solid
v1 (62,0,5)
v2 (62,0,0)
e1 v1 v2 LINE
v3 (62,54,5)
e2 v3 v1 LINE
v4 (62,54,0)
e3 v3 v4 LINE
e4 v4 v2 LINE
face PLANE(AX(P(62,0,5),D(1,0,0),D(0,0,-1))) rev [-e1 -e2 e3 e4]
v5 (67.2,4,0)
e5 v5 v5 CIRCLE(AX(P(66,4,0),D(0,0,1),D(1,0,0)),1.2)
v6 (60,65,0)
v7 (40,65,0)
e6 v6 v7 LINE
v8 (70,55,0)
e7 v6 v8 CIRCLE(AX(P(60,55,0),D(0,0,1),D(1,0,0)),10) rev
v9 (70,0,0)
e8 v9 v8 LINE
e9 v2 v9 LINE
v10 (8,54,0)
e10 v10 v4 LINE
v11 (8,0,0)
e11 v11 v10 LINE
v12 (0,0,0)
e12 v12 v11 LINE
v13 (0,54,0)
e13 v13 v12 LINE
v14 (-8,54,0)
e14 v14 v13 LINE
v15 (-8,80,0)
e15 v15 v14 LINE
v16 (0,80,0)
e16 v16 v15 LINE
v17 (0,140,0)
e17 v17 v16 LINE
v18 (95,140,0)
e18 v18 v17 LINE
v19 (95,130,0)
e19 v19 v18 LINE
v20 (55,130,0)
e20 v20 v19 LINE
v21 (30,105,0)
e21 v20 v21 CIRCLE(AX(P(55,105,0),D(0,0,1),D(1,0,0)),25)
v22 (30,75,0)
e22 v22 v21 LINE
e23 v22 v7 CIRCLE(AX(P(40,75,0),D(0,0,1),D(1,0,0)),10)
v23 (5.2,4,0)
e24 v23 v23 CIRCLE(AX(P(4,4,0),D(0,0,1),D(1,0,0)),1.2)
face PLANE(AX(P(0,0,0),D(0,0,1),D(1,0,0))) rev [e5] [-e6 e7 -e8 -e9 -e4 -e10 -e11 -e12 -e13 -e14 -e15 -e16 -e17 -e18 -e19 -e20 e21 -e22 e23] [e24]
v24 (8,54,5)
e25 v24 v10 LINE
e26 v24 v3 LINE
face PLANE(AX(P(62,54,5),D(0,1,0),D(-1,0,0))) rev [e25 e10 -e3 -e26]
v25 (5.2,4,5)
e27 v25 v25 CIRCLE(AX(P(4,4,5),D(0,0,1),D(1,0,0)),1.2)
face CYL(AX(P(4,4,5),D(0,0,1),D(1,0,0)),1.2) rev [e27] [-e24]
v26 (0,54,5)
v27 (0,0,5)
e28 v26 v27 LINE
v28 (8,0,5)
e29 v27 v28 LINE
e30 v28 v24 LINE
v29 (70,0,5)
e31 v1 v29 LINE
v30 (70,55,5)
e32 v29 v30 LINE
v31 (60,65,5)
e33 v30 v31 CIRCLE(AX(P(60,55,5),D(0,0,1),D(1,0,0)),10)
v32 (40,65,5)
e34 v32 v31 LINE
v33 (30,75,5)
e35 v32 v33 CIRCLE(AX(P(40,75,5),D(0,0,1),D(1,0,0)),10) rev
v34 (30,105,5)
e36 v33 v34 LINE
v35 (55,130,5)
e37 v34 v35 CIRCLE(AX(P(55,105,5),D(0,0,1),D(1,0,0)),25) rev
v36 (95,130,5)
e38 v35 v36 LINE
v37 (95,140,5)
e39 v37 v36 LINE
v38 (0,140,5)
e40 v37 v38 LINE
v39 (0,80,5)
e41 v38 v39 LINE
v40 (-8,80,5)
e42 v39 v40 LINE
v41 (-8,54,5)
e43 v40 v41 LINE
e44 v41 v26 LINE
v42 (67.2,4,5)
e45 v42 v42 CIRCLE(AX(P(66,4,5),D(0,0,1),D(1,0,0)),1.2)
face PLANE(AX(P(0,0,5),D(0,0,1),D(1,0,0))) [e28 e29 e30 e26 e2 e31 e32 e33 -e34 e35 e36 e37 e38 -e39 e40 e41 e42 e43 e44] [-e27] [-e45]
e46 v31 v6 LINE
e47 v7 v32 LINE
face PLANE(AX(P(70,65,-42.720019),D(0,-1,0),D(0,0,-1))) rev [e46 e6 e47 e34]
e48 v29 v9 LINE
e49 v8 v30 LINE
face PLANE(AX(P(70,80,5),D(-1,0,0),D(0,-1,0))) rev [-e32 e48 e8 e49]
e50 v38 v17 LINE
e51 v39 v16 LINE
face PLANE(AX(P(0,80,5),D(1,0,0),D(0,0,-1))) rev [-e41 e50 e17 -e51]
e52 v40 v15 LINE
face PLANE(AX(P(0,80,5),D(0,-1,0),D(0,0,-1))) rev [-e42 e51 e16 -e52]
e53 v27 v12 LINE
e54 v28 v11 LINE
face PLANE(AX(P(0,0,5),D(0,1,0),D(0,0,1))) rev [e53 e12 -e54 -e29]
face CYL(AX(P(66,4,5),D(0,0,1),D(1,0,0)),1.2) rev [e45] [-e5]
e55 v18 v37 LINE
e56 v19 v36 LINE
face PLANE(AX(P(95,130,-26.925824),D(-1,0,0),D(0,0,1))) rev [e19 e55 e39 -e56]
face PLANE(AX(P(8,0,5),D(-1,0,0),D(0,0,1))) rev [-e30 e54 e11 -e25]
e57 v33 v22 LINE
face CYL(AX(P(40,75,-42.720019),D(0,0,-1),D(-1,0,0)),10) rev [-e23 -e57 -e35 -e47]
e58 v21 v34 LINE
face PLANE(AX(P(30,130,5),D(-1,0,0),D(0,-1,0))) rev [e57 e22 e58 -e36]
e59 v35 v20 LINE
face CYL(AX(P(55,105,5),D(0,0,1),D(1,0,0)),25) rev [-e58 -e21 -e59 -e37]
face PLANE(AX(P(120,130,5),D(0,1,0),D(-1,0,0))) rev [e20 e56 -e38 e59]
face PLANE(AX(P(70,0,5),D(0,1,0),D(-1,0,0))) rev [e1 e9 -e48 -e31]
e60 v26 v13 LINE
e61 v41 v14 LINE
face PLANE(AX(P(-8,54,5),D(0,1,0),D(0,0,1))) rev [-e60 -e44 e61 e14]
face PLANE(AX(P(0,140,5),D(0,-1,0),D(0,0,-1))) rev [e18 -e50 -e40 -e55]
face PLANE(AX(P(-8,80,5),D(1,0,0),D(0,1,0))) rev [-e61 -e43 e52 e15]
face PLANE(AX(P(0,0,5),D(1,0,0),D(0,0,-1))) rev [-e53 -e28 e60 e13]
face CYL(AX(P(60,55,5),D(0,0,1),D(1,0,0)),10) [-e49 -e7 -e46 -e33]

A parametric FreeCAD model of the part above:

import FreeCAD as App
import Part
import Sketcher


def edges_at(feature, points):
    """Names of the edges that pass closest to the given points."""
    edges = feature.Shape.Edges
    near = lambda p: min(range(len(edges)), key=lambda i: edges[i].distToShape(Part.Vertex(*p))[0])
    return sorted({f"Edge{near(p) + 1}" for p in points})

doc = App.newDocument("Part")
body = doc.addObject("PartDesign::Body", "Body")

sketch1 = body.newObject("Sketcher::SketchObject", "Sketch")
sketch1.AttachmentSupport = (doc.getObject("XY_Plane"), [""])
sketch1.MapMode = "FlatFace"
sketch1.addGeometry(Part.LineSegment(App.Vector(0, 54, 0), App.Vector(0, 0, 0)), False)
sketch1.addGeometry(Part.LineSegment(App.Vector(0, 0, 0), App.Vector(8, 0, 0)), False)
sketch1.addGeometry(Part.LineSegment(App.Vector(8, 0, 0), App.Vector(8, 54, 0)), False)
sketch1.addGeometry(Part.LineSegment(App.Vector(8, 54, 0), App.Vector(62, 54, 0)), False)
sketch1.addGeometry(Part.LineSegment(App.Vector(62, 54, 0), App.Vector(62, 0, 0)), False)
sketch1.addGeometry(Part.LineSegment(App.Vector(62, 0, 0), App.Vector(70, 0, 0)), False)
sketch1.addGeometry(Part.LineSegment(App.Vector(70, 0, 0), App.Vector(70, 80, 0)), False)
sketch1.addGeometry(Part.LineSegment(App.Vector(70, 80, 0), App.Vector(30, 80, 0)), False)
sketch1.addGeometry(Part.LineSegment(App.Vector(30, 80, 0), App.Vector(30, 130, 0)), False)
sketch1.addGeometry(Part.LineSegment(App.Vector(30, 130, 0), App.Vector(120, 130, 0)), False)
sketch1.addGeometry(Part.LineSegment(App.Vector(120, 130, 0), App.Vector(120, 140, 0)), False)
sketch1.addGeometry(Part.LineSegment(App.Vector(120, 140, 0), App.Vector(0, 140, 0)), False)
sketch1.addGeometry(Part.LineSegment(App.Vector(0, 140, 0), App.Vector(0, 80, 0)), False)
sketch1.addGeometry(Part.LineSegment(App.Vector(0, 80, 0), App.Vector(-8, 80, 0)), False)
sketch1.addGeometry(Part.LineSegment(App.Vector(-8, 80, 0), App.Vector(-8, 54, 0)), False)
sketch1.addGeometry(Part.LineSegment(App.Vector(-8, 54, 0), App.Vector(0, 54, 0)), False)
sketch1.addConstraint(Sketcher.Constraint("Coincident", 0, 2, 1, 1))
sketch1.addConstraint(Sketcher.Constraint("Coincident", 1, 2, 2, 1))
sketch1.addConstraint(Sketcher.Constraint("Coincident", 2, 2, 3, 1))
sketch1.addConstraint(Sketcher.Constraint("Coincident", 3, 2, 4, 1))
sketch1.addConstraint(Sketcher.Constraint("Coincident", 4, 2, 5, 1))
sketch1.addConstraint(Sketcher.Constraint("Coincident", 5, 2, 6, 1))
sketch1.addConstraint(Sketcher.Constraint("Coincident", 6, 2, 7, 1))
sketch1.addConstraint(Sketcher.Constraint("Coincident", 7, 2, 8, 1))
sketch1.addConstraint(Sketcher.Constraint("Coincident", 8, 2, 9, 1))
sketch1.addConstraint(Sketcher.Constraint("Coincident", 9, 2, 10, 1))
sketch1.addConstraint(Sketcher.Constraint("Coincident", 10, 2, 11, 1))
sketch1.addConstraint(Sketcher.Constraint("Coincident", 11, 2, 12, 1))
sketch1.addConstraint(Sketcher.Constraint("Coincident", 12, 2, 13, 1))
sketch1.addConstraint(Sketcher.Constraint("Coincident", 13, 2, 14, 1))
sketch1.addConstraint(Sketcher.Constraint("Coincident", 14, 2, 15, 1))
sketch1.addConstraint(Sketcher.Constraint("Coincident", 15, 2, 0, 1))
sketch1.addConstraint(Sketcher.Constraint("Vertical", 0))
sketch1.addConstraint(Sketcher.Constraint("Horizontal", 1))
sketch1.addConstraint(Sketcher.Constraint("Vertical", 2))
sketch1.addConstraint(Sketcher.Constraint("Horizontal", 3))
sketch1.addConstraint(Sketcher.Constraint("Vertical", 4))
sketch1.addConstraint(Sketcher.Constraint("Horizontal", 5))
sketch1.addConstraint(Sketcher.Constraint("Vertical", 6))
sketch1.addConstraint(Sketcher.Constraint("Horizontal", 7))
sketch1.addConstraint(Sketcher.Constraint("Vertical", 8))
sketch1.addConstraint(Sketcher.Constraint("Horizontal", 9))
sketch1.addConstraint(Sketcher.Constraint("Vertical", 10))
sketch1.addConstraint(Sketcher.Constraint("Horizontal", 11))
sketch1.addConstraint(Sketcher.Constraint("Vertical", 12))
sketch1.addConstraint(Sketcher.Constraint("Horizontal", 13))
sketch1.addConstraint(Sketcher.Constraint("Vertical", 14))
sketch1.addConstraint(Sketcher.Constraint("Horizontal", 15))
sketch1.addConstraint(Sketcher.Constraint("Coincident", 0, 2, -1, 1))
sketch1.addConstraint(Sketcher.Constraint("Symmetric", 2, 2, 14, 2, -2))
sketch1.addConstraint(Sketcher.Constraint("PointOnObject", 4, 2, -1))
sketch1.addConstraint(Sketcher.Constraint("PointOnObject", 11, 2, -2))
sketch1.addConstraint(Sketcher.Constraint("Horizontal", 7, 2, 12, 2))
sketch1.addConstraint(Sketcher.Constraint("Equal", 1, 5))
sketch1.addConstraint(Sketcher.Constraint("Equal", 3, 0))
sketch1.addConstraint(Sketcher.Constraint("DistanceX", 1, 1, 1, 2, 8.0))
sketch1.addConstraint(Sketcher.Constraint("DistanceX", 3, 1, 3, 2, 54.0))
sketch1.addConstraint(Sketcher.Constraint("DistanceX", 7, 2, 7, 1, 40.0))
sketch1.addConstraint(Sketcher.Constraint("DistanceX", 9, 1, 9, 2, 90.0))
sketch1.addConstraint(Sketcher.Constraint("DistanceY", 6, 1, 6, 2, 80.0))
sketch1.addConstraint(Sketcher.Constraint("DistanceY", 8, 1, 8, 2, 50.0))
sketch1.addConstraint(Sketcher.Constraint("DistanceY", 10, 1, 10, 2, 10.0))
pad1 = body.newObject("PartDesign::Pad", "Pad")
pad1.Profile = sketch1
pad1.Length = 5
doc.recompute()

fillet = body.newObject("PartDesign::Fillet", "Fillet")
fillet.Base = (pad1, edges_at(pad1, [(30, 130, 2.5)]))
fillet.Radius = 25

sketch2 = body.newObject("Sketcher::SketchObject", "Sketch001")
sketch2.AttachmentSupport = (doc.getObject("XY_Plane"), [""])
sketch2.MapMode = "FlatFace"
sketch2.AttachmentOffset = App.Placement(App.Vector(0, 0, 5), App.Rotation())
sketch2.addGeometry(Part.LineSegment(App.Vector(30, 80, 0), App.Vector(30, 65, 0)), False)
sketch2.addGeometry(Part.LineSegment(App.Vector(30, 65, 0), App.Vector(70, 65, 0)), False)
sketch2.addGeometry(Part.LineSegment(App.Vector(70, 65, 0), App.Vector(70, 80, 0)), False)
sketch2.addGeometry(Part.LineSegment(App.Vector(70, 80, 0), App.Vector(30, 80, 0)), False)
sketch2.addConstraint(Sketcher.Constraint("Coincident", 0, 2, 1, 1))
sketch2.addConstraint(Sketcher.Constraint("Coincident", 1, 2, 2, 1))
sketch2.addConstraint(Sketcher.Constraint("Coincident", 2, 2, 3, 1))
sketch2.addConstraint(Sketcher.Constraint("Coincident", 3, 2, 0, 1))
sketch2.addConstraint(Sketcher.Constraint("Vertical", 0))
sketch2.addConstraint(Sketcher.Constraint("Horizontal", 1))
sketch2.addConstraint(Sketcher.Constraint("Vertical", 2))
sketch2.addConstraint(Sketcher.Constraint("Horizontal", 3))
sketch2.addConstraint(Sketcher.Constraint("DistanceX", 1, 1, 1, 2, 40.0))
sketch2.addConstraint(Sketcher.Constraint("DistanceY", 0, 2, 0, 1, 15.0))
sketch2.addConstraint(Sketcher.Constraint("DistanceX", -1, 1, 0, 2, 30.0))
sketch2.addConstraint(Sketcher.Constraint("DistanceY", -1, 1, 0, 2, 65.0))
pocket1 = body.newObject("PartDesign::Pocket", "Pocket")
pocket1.Profile = sketch2
pocket1.Length = 5
doc.recompute()

fillet2 = body.newObject("PartDesign::Fillet", "Fillet001")
fillet2.Base = (pocket1, edges_at(pocket1, [(70, 65, 2.5), (30, 65, 2.5)]))
fillet2.Radius = 10

sketch3 = body.newObject("Sketcher::SketchObject", "Sketch002")
sketch3.AttachmentSupport = (doc.getObject("XY_Plane"), [""])
sketch3.MapMode = "FlatFace"
sketch3.AttachmentOffset = App.Placement(App.Vector(0, 0, 5), App.Rotation())
sketch3.addGeometry(Part.Circle(App.Vector(4, 4, 0), App.Vector(0, 0, 1), 1), False)
sketch3.addGeometry(Part.Circle(App.Vector(66, 4, 0), App.Vector(0, 0, 1), 1), False)
sketch3.addConstraint(Sketcher.Constraint("Equal", 0, 1))
sketch3.addConstraint(Sketcher.Constraint("Horizontal", 0, 3, 1, 3))
sketch3.addConstraint(Sketcher.Constraint("Diameter", 0, 2.0))
sketch3.addConstraint(Sketcher.Constraint("DistanceX", -1, 1, 0, 3, 4.0))
sketch3.addConstraint(Sketcher.Constraint("DistanceY", -1, 1, 0, 3, 4.0))
sketch3.addConstraint(Sketcher.Constraint("DistanceX", -1, 1, 1, 3, 66.0))
pocket2 = body.newObject("PartDesign::Pocket", "Pocket001")
pocket2.Profile = sketch3
pocket2.Length = 10

sketch4 = body.newObject("Sketcher::SketchObject", "Sketch003")
sketch4.AttachmentSupport = (doc.getObject("XY_Plane"), [""])
sketch4.MapMode = "FlatFace"
sketch4.AttachmentOffset = App.Placement(App.Vector(0, 0, 5), App.Rotation())
sketch4.addGeometry(Part.Circle(App.Vector(4, 4, 0), App.Vector(0, 0, 1), 1.2), False)
sketch4.addGeometry(Part.Circle(App.Vector(66, 4, 0), App.Vector(0, 0, 1), 1.2), False)
sketch4.addConstraint(Sketcher.Constraint("Equal", 0, 1))
sketch4.addConstraint(Sketcher.Constraint("Horizontal", 0, 3, 1, 3))
sketch4.addConstraint(Sketcher.Constraint("Diameter", 0, 2.4))
sketch4.addConstraint(Sketcher.Constraint("DistanceX", -1, 1, 0, 3, 4.0))
sketch4.addConstraint(Sketcher.Constraint("DistanceY", -1, 1, 0, 3, 4.0))
sketch4.addConstraint(Sketcher.Constraint("DistanceX", -1, 1, 1, 3, 66.0))
doc.recompute()
hole = body.newObject("PartDesign::Hole", "Hole")
hole.Profile = sketch4
hole.ThreadType = "None"
hole.Diameter = 2.4
hole.DepthType = "ThroughAll"

sketch5 = body.newObject("Sketcher::SketchObject", "Sketch004")
sketch5.AttachmentSupport = (doc.getObject("XY_Plane"), [""])
sketch5.MapMode = "FlatFace"
sketch5.AttachmentOffset = App.Placement(App.Vector(0, 0, 5), App.Rotation())
sketch5.addGeometry(Part.LineSegment(App.Vector(95, 140, 0), App.Vector(95, 130, 0)), False)
sketch5.addGeometry(Part.LineSegment(App.Vector(95, 130, 0), App.Vector(120, 130, 0)), False)
sketch5.addGeometry(Part.LineSegment(App.Vector(120, 130, 0), App.Vector(120, 140, 0)), False)
sketch5.addGeometry(Part.LineSegment(App.Vector(120, 140, 0), App.Vector(95, 140, 0)), False)
sketch5.addConstraint(Sketcher.Constraint("Coincident", 0, 2, 1, 1))
sketch5.addConstraint(Sketcher.Constraint("Coincident", 1, 2, 2, 1))
sketch5.addConstraint(Sketcher.Constraint("Coincident", 2, 2, 3, 1))
sketch5.addConstraint(Sketcher.Constraint("Coincident", 3, 2, 0, 1))
sketch5.addConstraint(Sketcher.Constraint("Vertical", 0))
sketch5.addConstraint(Sketcher.Constraint("Horizontal", 1))
sketch5.addConstraint(Sketcher.Constraint("Vertical", 2))
sketch5.addConstraint(Sketcher.Constraint("Horizontal", 3))
sketch5.addConstraint(Sketcher.Constraint("DistanceX", 1, 1, 1, 2, 25.0))
sketch5.addConstraint(Sketcher.Constraint("DistanceY", 0, 2, 0, 1, 10.0))
sketch5.addConstraint(Sketcher.Constraint("DistanceX", -1, 1, 0, 2, 95.0))
sketch5.addConstraint(Sketcher.Constraint("DistanceY", -1, 1, 0, 2, 130.0))
pocket3 = body.newObject("PartDesign::Pocket", "Pocket002")
pocket3.Profile = sketch5
pocket3.Length = 5

doc.recompute()
